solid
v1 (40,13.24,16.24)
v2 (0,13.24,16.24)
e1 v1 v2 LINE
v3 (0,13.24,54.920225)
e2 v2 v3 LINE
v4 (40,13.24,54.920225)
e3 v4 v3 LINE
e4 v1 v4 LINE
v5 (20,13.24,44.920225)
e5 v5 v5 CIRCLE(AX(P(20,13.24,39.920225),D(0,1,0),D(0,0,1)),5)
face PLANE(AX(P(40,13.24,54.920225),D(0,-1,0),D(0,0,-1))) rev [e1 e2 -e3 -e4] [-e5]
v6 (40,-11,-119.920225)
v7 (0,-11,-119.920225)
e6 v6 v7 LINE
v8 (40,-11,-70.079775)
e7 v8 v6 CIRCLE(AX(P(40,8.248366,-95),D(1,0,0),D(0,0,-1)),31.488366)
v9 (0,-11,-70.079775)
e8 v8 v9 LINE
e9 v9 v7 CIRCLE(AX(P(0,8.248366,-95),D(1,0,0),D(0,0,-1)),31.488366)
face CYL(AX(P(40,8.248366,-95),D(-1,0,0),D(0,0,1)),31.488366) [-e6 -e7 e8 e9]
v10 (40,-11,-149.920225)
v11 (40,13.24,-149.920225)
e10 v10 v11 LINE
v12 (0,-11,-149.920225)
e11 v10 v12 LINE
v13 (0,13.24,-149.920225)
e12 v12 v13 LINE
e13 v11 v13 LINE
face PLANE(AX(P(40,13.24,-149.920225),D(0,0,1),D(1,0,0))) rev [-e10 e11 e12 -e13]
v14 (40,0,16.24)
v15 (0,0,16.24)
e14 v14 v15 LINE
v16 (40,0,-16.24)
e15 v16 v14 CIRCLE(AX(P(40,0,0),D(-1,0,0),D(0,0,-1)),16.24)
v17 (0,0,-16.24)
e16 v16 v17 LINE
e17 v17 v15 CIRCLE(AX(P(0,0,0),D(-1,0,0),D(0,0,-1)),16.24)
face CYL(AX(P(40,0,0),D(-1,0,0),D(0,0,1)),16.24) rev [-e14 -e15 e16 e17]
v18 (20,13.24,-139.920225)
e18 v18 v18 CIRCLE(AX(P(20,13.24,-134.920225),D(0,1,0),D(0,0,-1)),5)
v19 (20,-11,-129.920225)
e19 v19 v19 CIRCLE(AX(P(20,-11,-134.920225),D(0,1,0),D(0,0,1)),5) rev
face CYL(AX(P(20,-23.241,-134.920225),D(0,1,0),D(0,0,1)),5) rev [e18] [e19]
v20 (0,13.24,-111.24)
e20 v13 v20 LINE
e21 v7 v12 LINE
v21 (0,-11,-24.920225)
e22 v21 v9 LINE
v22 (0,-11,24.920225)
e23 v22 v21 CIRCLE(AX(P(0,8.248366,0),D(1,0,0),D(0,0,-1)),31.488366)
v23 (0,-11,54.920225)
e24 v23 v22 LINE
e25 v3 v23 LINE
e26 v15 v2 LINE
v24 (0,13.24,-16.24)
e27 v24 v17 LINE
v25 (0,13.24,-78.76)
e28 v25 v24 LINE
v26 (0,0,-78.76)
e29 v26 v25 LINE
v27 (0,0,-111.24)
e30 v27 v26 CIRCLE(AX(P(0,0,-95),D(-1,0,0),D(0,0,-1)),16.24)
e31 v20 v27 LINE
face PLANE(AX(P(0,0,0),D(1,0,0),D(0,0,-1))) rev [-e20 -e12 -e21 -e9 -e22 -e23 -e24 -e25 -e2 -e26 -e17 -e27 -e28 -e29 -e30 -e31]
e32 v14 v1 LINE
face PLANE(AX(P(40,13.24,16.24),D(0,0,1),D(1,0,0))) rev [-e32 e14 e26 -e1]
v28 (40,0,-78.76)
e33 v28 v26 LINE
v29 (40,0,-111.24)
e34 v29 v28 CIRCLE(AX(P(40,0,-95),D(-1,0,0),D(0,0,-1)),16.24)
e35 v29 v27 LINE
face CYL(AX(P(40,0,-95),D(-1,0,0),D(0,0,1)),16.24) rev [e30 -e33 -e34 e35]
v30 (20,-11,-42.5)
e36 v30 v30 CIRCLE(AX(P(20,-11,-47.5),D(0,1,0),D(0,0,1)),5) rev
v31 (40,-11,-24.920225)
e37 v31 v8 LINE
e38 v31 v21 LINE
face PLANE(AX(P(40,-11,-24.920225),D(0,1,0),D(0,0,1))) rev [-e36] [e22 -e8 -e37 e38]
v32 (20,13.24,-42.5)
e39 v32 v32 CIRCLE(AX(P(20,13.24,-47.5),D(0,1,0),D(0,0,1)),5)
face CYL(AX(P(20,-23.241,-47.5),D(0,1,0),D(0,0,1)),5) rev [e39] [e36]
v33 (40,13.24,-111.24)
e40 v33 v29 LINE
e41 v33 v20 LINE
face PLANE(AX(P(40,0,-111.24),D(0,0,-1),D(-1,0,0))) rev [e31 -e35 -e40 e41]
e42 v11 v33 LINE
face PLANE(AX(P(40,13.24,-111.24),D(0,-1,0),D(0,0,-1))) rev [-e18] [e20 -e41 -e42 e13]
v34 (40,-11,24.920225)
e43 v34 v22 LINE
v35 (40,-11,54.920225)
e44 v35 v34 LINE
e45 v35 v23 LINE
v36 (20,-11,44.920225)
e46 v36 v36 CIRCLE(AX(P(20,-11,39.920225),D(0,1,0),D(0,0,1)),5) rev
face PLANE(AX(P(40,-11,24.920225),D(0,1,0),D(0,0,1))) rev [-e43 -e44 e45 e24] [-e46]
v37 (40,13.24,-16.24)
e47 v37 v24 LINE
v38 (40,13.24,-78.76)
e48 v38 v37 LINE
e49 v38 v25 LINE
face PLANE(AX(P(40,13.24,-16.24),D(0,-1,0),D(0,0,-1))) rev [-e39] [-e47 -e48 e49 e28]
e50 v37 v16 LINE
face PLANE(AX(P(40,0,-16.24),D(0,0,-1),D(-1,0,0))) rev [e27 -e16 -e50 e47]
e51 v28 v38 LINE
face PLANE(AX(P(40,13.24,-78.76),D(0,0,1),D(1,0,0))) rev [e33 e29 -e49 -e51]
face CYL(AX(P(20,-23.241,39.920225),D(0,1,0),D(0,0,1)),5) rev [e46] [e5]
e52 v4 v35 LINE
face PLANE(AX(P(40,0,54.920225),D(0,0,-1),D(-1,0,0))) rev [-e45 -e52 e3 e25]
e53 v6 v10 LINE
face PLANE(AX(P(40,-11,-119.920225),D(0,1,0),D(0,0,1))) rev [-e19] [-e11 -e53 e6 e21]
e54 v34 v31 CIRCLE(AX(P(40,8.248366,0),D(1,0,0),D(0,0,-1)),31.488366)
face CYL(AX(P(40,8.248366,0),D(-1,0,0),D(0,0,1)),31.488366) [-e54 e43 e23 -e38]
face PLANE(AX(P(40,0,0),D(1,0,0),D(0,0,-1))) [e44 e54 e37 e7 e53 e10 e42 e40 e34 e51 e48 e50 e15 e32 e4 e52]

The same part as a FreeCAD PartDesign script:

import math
import FreeCAD as App
import Part
import Sketcher

V = App.Vector

doc = App.newDocument("Part")
body = doc.addObject("PartDesign::Body", "Body")

# Sketch on YZ plane
sketch1 = doc.addObject("Sketcher::SketchObject", "Sketch")
body.addObject(sketch1)
sketch1.AttachmentSupport = (doc.YZ_Plane, [""])
sketch1.MapMode = "FlatFace"
sketch1.addGeometry([
    Part.LineSegment(V(-11, 55, 0), V(-11, 25, 0)),  # 0
    Part.ArcOfCircle(Part.Circle(V(8, 0, 0), V(0, 0, 1), 31), math.radians(128), math.radians(232)),  # 1
    Part.LineSegment(V(-11, -25, 0), V(-11, -70, 0)),  # 2
    Part.ArcOfCircle(Part.Circle(V(8, -95, 0), V(0, 0, 1), 31), math.radians(128), math.radians(232)),  # 3
    Part.LineSegment(V(-11, -120, 0), V(-11, -150, 0)),  # 4
    Part.LineSegment(V(-11, -150, 0), V(13, -150, 0)),  # 5
    Part.LineSegment(V(13, -150, 0), V(13, -111, 0)),  # 6
    Part.LineSegment(V(13, -111, 0), V(0, -111, 0)),  # 7
    Part.ArcOfCircle(Part.Circle(V(0, -95, 0), V(0, 0, 1), 16), math.radians(90), math.radians(270)),  # 8
    Part.LineSegment(V(0, -79, 0), V(13, -79, 0)),  # 9
    Part.LineSegment(V(13, -79, 0), V(13, -16, 0)),  # 10
    Part.LineSegment(V(13, -16, 0), V(0, -16, 0)),  # 11
    Part.ArcOfCircle(Part.Circle(V(0, 0, 0), V(0, 0, 1), 16), math.radians(90), math.radians(270)),  # 12
    Part.LineSegment(V(0, 16, 0), V(13, 16, 0)),  # 13
    Part.LineSegment(V(13, 16, 0), V(13, 55, 0)),  # 14
    Part.LineSegment(V(13, 55, 0), V(-11, 55, 0)),  # 15
], False)
sketch1.addConstraint([
    Sketcher.Constraint("Coincident", 0, 2, 1, 1),
    Sketcher.Constraint("Coincident", 1, 2, 2, 1),
    Sketcher.Constraint("Coincident", 2, 2, 3, 1),
    Sketcher.Constraint("Coincident", 3, 2, 4, 1),
    Sketcher.Constraint("Coincident", 4, 2, 5, 1),
    Sketcher.Constraint("Coincident", 5, 2, 6, 1),
    Sketcher.Constraint("Coincident", 6, 2, 7, 1),
    Sketcher.Constraint("Tangent", 7, 2, 8, 2),
    Sketcher.Constraint("Tangent", 8, 1, 9, 1),
    Sketcher.Constraint("Coincident", 9, 2, 10, 1),
    Sketcher.Constraint("Coincident", 10, 2, 11, 1),
    Sketcher.Constraint("Tangent", 11, 2, 12, 2),
    Sketcher.Constraint("Tangent", 12, 1, 13, 1),
    Sketcher.Constraint("Coincident", 13, 2, 14, 1),
    Sketcher.Constraint("Coincident", 14, 2, 15, 1),
    Sketcher.Constraint("Coincident", 15, 2, 0, 1),
    Sketcher.Constraint("Vertical", 0),
    Sketcher.Constraint("Vertical", 2),
    Sketcher.Constraint("Vertical", 4),
    Sketcher.Constraint("Horizontal", 5),
    Sketcher.Constraint("Vertical", 6),
    Sketcher.Constraint("Horizontal", 7),
    Sketcher.Constraint("Horizontal", 9),
    Sketcher.Constraint("Vertical", 10),
    Sketcher.Constraint("Horizontal", 11),
    Sketcher.Constraint("Horizontal", 13),
    Sketcher.Constraint("Vertical", 14),
    Sketcher.Constraint("Horizontal", 15),
    Sketcher.Constraint("Coincident", 12, 3, -1, 1),
    Sketcher.Constraint("Equal", 1, 3),
    Sketcher.Constraint("Equal", 8, 12),
    Sketcher.Constraint("Symmetric", 0, 2, 1, 2, -1),
    Sketcher.Constraint("PointOnObject", 8, 3, -2),
    Sketcher.Constraint("Horizontal", 3, 3, 8, 3),
    Sketcher.Constraint("Vertical", 1, 3, 3, 3),
    Sketcher.Constraint("Vertical", 2, 2, 3, 2),
    Sketcher.Constraint("Vertical", 6, 2, 9, 2),
    Sketcher.Constraint("Vertical", 10, 2, 13, 2),
    Sketcher.Constraint("Equal", 0, 4),
    Sketcher.Constraint("DistanceY", 0, 2, 0, 1, 30.0),
    Sketcher.Constraint("Radius", 8, 16.24),
    Sketcher.Constraint("DistanceY", 3, 3, -1, 1, 95.0),
    Sketcher.Constraint("DistanceX", 0, 2, -1, 1, 11.0),
    Sketcher.Constraint("DistanceX", 5, 1, 5, 2, 24.24),
    Sketcher.Constraint("Radius", 1, 31.488366),
    Sketcher.Constraint("DistanceY", 2, 2, 2, 1, 45.159551),
])
pad1 = doc.addObject("PartDesign::Pad", "Pad")
body.addObject(pad1)
pad1.Profile = sketch1
pad1.Length = 40

# Sketch on XZ plane
sketch2 = doc.addObject("Sketcher::SketchObject", "Sketch001")
body.addObject(sketch2)
sketch2.AttachmentSupport = (doc.XZ_Plane, [""])
sketch2.MapMode = "FlatFace"
sketch2.AttachmentOffset = App.Placement(V(0, 0, -13.24), App.Rotation())
sketch2.addGeometry(Part.Circle(V(20, 40, 0), V(0, 0, 1), 5), False)
sketch2.addConstraint([
    Sketcher.Constraint("Diameter", 0, 10.0),
    Sketcher.Constraint("DistanceX", -1, 1, 0, 3, 20.0),
    Sketcher.Constraint("DistanceY", -1, 1, 0, 3, 39.920225),
])
pocket1 = doc.addObject("PartDesign::Pocket", "Pocket")
body.addObject(pocket1)
pocket1.Profile = sketch2
pocket1.Type = "UpToFirst"
pocket1.Reversed = True

# Sketch on XZ plane
sketch3 = doc.addObject("Sketcher::SketchObject", "Sketch002")
body.addObject(sketch3)
sketch3.AttachmentSupport = (doc.XZ_Plane, [""])
sketch3.MapMode = "FlatFace"
sketch3.AttachmentOffset = App.Placement(V(0, 0, -13.24), App.Rotation())
sketch3.addGeometry(Part.Circle(V(20, -135, 0), V(0, 0, 1), 5), False)
sketch3.addConstraint([
    Sketcher.Constraint("Diameter", 0, 10.0),
    Sketcher.Constraint("DistanceX", -1, 1, 0, 3, 20.0),
    Sketcher.Constraint("DistanceY", 0, 3, -1, 1, 134.920225),
])
pocket2 = doc.addObject("PartDesign::Pocket", "Pocket001")
body.addObject(pocket2)
pocket2.Profile = sketch3
pocket2.Type = "UpToFirst"
pocket2.Reversed = True

# Sketch on XZ plane
sketch4 = doc.addObject("Sketcher::SketchObject", "Sketch003")
body.addObject(sketch4)
sketch4.AttachmentSupport = (doc.XZ_Plane, [""])
sketch4.MapMode = "FlatFace"
sketch4.AttachmentOffset = App.Placement(V(0, 0, -13.24), App.Rotation())
sketch4.addGeometry(Part.Circle(V(20, -48, 0), V(0, 0, 1), 5), False)
sketch4.addConstraint([
    Sketcher.Constraint("Diameter", 0, 10.0),
    Sketcher.Constraint("DistanceX", -1, 1, 0, 3, 20.0),
    Sketcher.Constraint("DistanceY", 0, 3, -1, 1, 47.5),
])
pocket3 = doc.addObject("PartDesign::Pocket", "Pocket002")
body.addObject(pocket3)
pocket3.Profile = sketch4
pocket3.Type = "UpToFirst"
pocket3.Reversed = True

doc.recompute()
